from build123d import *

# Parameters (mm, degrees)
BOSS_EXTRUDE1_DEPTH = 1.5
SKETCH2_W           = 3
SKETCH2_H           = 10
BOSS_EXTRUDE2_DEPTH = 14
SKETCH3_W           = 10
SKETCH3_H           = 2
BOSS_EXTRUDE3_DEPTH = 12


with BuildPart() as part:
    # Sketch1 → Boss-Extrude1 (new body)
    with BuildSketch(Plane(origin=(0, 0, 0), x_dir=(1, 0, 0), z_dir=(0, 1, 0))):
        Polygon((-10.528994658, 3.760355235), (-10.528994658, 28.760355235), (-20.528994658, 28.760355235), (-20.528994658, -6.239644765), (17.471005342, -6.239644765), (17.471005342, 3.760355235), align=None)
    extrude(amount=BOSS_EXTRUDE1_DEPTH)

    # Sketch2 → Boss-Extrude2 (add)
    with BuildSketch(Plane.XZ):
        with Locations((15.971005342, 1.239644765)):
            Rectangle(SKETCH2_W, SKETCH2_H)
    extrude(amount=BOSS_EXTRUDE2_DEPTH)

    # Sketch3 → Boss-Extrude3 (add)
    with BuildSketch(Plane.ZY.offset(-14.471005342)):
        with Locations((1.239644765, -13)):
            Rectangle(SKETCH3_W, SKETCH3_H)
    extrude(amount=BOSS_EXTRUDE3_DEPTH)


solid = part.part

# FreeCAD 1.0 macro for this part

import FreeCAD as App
import Part
import Sketcher

V = App.Vector
Q = App.Units.Quantity

doc = App.newDocument("Part")
body = doc.addObject("PartDesign::Body", "Body")

# Sketch on XZ plane
sketch1 = body.newObject("Sketcher::SketchObject", "Sketch")
sketch1.AttachmentSupport = (doc.getObject("XZ_Plane"), [""])
sketch1.MapMode = "FlatFace"
sketch1.addGeometry([
    Part.LineSegment(V(-10.528995, -3.760355, 0), V(-10.528995, -28.760355, 0)),  # 0
    Part.LineSegment(V(-10.528995, -28.760355, 0), V(-20.528995, -28.760355, 0)),  # 1
    Part.LineSegment(V(-20.528995, -28.760355, 0), V(-20.528995, 6.239645, 0)),  # 2
    Part.LineSegment(V(-20.528995, 6.239645, 0), V(17.471005, 6.239645, 0)),  # 3
    Part.LineSegment(V(17.471005, 6.239645, 0), V(17.471005, -3.760355, 0)),  # 4
    Part.LineSegment(V(17.471005, -3.760355, 0), V(-10.528995, -3.760355, 0)),  # 5
], False)
sketch1.addConstraint([
    Sketcher.Constraint("Coincident", 0, 2, 1, 1),
    Sketcher.Constraint("Coincident", 1, 2, 2, 1),
    Sketcher.Constraint("Coincident", 2, 2, 3, 1),
    Sketcher.Constraint("Coincident", 3, 2, 4, 1),
    Sketcher.Constraint("Coincident", 4, 2, 5, 1),
    Sketcher.Constraint("Coincident", 5, 2, 0, 1),
    Sketcher.Constraint("Vertical", 0),
    Sketcher.Constraint("Horizontal", 1),
    Sketcher.Constraint("Vertical", 2),
    Sketcher.Constraint("Horizontal", 3),
    Sketcher.Constraint("Vertical", 4),
    Sketcher.Constraint("Horizontal", 5),
    Sketcher.Constraint("Equal", 1, 4),
    Sketcher.Constraint("DistanceX", 1, 2, 1, 1, Q("10 mm")),
    Sketcher.Constraint("DistanceX", 3, 1, 3, 2, Q("38 mm")),
    Sketcher.Constraint("DistanceY", 0, 2, 0, 1, Q("25 mm")),
    Sketcher.Constraint("DistanceX", 0, 2, -1, 1, Q("10.528995 mm")),
    Sketcher.Constraint("DistanceY", 0, 2, -1, 1, Q("28.760355 mm")),
])
pad1 = body.newObject("PartDesign::Pad", "Pad")
pad1.Profile = sketch1
pad1.Length = 1.5
pad1.Reversed = True

# Sketch on XZ plane
sketch2 = body.newObject("Sketcher::SketchObject", "Sketch001")
sketch2.AttachmentSupport = (doc.getObject("XZ_Plane"), [""])
sketch2.MapMode = "FlatFace"
sketch2.addGeometry([
    Part.LineSegment(V(14.471005, 6.239645, 0), V(14.471005, -3.760355, 0)),
    Part.LineSegment(V(14.471005, -3.760355, 0), V(17.471005, -3.760355, 0)),
    Part.LineSegment(V(17.471005, -3.760355, 0), V(17.471005, 6.239645, 0)),
    Part.LineSegment(V(17.471005, 6.239645, 0), V(14.471005, 6.239645, 0)),
], False)
sketch2.addConstraint([
    Sketcher.Constraint("Coincident", 0, 2, 1, 1),
    Sketcher.Constraint("Coincident", 1, 2, 2, 1),
    Sketcher.Constraint("Coincident", 2, 2, 3, 1),
    Sketcher.Constraint("Coincident", 3, 2, 0, 1),
    Sketcher.Constraint("Vertical", 0),
    Sketcher.Constraint("Horizontal", 1),
    Sketcher.Constraint("Vertical", 2),
    Sketcher.Constraint("Horizontal", 3),
    Sketcher.Constraint("DistanceX", 1, 1, 1, 2, Q("3 mm")),
    Sketcher.Constraint("DistanceY", 0, 2, 0, 1, Q("10 mm")),
    Sketcher.Constraint("DistanceX", -1, 1, 0, 2, Q("14.471005 mm")),
    Sketcher.Constraint("DistanceY", 0, 2, -1, 1, Q("3.760355 mm")),
])
pad2 = body.newObject("PartDesign::Pad", "Pad001")
pad2.Profile = sketch2
pad2.Length = 14

# Sketch on YZ plane
sketch3 = body.newObject("Sketcher::SketchObject", "Sketch002")
sketch3.AttachmentSupport = (doc.getObject("YZ_Plane"), [""])
sketch3.MapMode = "FlatFace"
sketch3.AttachmentOffset = App.Placement(V(0, 0, 14.471005), App.Rotation())
sketch3.addGeometry([
    Part.LineSegment(V(-12, -3.760355, 0), V(-14, -3.760355, 0)),
    Part.LineSegment(V(-14, -3.760355, 0), V(-14, 6.239645, 0)),
    Part.LineSegment(V(-14, 6.239645, 0), V(-12, 6.239645, 0)),
    Part.LineSegment(V(-12, 6.239645, 0), V(-12, -3.760355, 0)),
], False)
sketch3.addConstraint([
    Sketcher.Constraint("Coincident", 0, 2, 1, 1),
    Sketcher.Constraint("Coincident", 1, 2, 2, 1),
    Sketcher.Constraint("Coincident", 2, 2, 3, 1),
    Sketcher.Constraint("Coincident", 3, 2, 0, 1),
    Sketcher.Constraint("Horizontal", 0),
    Sketcher.Constraint("Vertical", 1),
    Sketcher.Constraint("Horizontal", 2),
    Sketcher.Constraint("Vertical", 3),
    Sketcher.Constraint("DistanceX", 0, 2, 0, 1, Q("2 mm")),
    Sketcher.Constraint("DistanceY", 1, 1, 1, 2, Q("10 mm")),
    Sketcher.Constraint("DistanceX", 0, 2, -1, 1, Q("14 mm")),
    Sketcher.Constraint("DistanceY", 0, 2, -1, 1, Q("3.760355 mm")),
])
pad3 = body.newObject("PartDesign::Pad", "Pad002")
pad3.Profile = sketch3
pad3.Length = 12
pad3.Reversed = True

doc.recompute()
